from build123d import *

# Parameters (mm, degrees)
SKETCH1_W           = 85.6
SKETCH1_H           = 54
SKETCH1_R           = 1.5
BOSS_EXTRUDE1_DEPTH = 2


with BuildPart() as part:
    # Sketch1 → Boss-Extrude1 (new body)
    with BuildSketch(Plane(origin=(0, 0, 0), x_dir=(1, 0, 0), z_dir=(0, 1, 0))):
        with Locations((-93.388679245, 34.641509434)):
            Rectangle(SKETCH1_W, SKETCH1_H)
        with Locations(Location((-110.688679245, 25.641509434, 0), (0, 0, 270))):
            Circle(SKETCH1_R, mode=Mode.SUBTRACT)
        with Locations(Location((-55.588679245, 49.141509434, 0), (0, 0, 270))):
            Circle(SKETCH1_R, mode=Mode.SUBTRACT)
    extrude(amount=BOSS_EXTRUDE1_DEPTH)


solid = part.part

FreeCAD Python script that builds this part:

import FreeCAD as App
import Part
import Sketcher

V = App.Vector
Q = App.Units.Quantity

doc = App.newDocument("Part")
body = doc.addObject("PartDesign::Body", "Body")

# Sketch on XZ plane
sketch1 = body.newObject("Sketcher::SketchObject", "Sketch")
sketch1.AttachmentSupport = (doc.getObject("XZ_Plane"), [""])
sketch1.MapMode = "FlatFace"
sketch1.addGeometry(Part.LineSegment(V(-136.2, -61.6, 0), V(-136.2, -7.6, 0)), False)
sketch1.addGeometry(Part.LineSegment(V(-136.2, -7.6, 0), V(-50.6, -7.6, 0)), False)
sketch1.addGeometry(Part.LineSegment(V(-50.6, -7.6, 0), V(-50.6, -61.6, 0)), False)
sketch1.addGeometry(Part.LineSegment(V(-50.6, -61.6, 0), V(-136.2, -61.6, 0)), False)
sketch1.addGeometry(Part.Circle(V(-110.7, -25.6, 0), V(0, 0, 1), 1.5), False)
sketch1.addGeometry(Part.Circle(V(-55.6, -49.1, 0), V(0, 0, 1), 1.5), False)
sketch1.addConstraint(Sketcher.Constraint("Coincident", 0, 2, 1, 1))
sketch1.addConstraint(Sketcher.Constraint("Coincident", 1, 2, 2, 1))
sketch1.addConstraint(Sketcher.Constraint("Coincident", 2, 2, 3, 1))
sketch1.addConstraint(Sketcher.Constraint("Coincident", 3, 2, 0, 1))
sketch1.addConstraint(Sketcher.Constraint("Vertical", 0))
sketch1.addConstraint(Sketcher.Constraint("Horizontal", 1))
sketch1.addConstraint(Sketcher.Constraint("Vertical", 2))
sketch1.addConstraint(Sketcher.Constraint("Horizontal", 3))
sketch1.addConstraint(Sketcher.Constraint("Equal", 4, 5))
sketch1.addConstraint(Sketcher.Constraint("Diameter", 4, Q("3 mm")))
sketch1.addConstraint(Sketcher.Constraint("DistanceY", 0, 1, 0, 2, Q("54 mm")))
sketch1.addConstraint(Sketcher.Constraint("DistanceX", 1, 1, 1, 2, Q("85.6 mm")))
sketch1.addConstraint(Sketcher.Constraint("DistanceY", 4, 3, 0, 2, Q("18 mm")))
sketch1.addConstraint(Sketcher.Constraint("DistanceX", 5, 3, 1, 2, Q("5 mm")))
sketch1.addConstraint(Sketcher.Constraint("DistanceX", 4, 3, 5, 3, Q("55.1 mm")))
sketch1.addConstraint(Sketcher.Constraint("DistanceY", 5, 3, 4, 3, Q("23.5 mm")))
sketch1.addConstraint(Sketcher.Constraint("DistanceX", 4, 3, -1, 1, Q("110.688679 mm")))
sketch1.addConstraint(Sketcher.Constraint("DistanceY", 4, 3, -1, 1, Q("25.641509 mm")))
pad1 = body.newObject("PartDesign::Pad", "Pad")
pad1.Profile = sketch1
pad1.Length = 2
pad1.Reversed = True

doc.recompute()
